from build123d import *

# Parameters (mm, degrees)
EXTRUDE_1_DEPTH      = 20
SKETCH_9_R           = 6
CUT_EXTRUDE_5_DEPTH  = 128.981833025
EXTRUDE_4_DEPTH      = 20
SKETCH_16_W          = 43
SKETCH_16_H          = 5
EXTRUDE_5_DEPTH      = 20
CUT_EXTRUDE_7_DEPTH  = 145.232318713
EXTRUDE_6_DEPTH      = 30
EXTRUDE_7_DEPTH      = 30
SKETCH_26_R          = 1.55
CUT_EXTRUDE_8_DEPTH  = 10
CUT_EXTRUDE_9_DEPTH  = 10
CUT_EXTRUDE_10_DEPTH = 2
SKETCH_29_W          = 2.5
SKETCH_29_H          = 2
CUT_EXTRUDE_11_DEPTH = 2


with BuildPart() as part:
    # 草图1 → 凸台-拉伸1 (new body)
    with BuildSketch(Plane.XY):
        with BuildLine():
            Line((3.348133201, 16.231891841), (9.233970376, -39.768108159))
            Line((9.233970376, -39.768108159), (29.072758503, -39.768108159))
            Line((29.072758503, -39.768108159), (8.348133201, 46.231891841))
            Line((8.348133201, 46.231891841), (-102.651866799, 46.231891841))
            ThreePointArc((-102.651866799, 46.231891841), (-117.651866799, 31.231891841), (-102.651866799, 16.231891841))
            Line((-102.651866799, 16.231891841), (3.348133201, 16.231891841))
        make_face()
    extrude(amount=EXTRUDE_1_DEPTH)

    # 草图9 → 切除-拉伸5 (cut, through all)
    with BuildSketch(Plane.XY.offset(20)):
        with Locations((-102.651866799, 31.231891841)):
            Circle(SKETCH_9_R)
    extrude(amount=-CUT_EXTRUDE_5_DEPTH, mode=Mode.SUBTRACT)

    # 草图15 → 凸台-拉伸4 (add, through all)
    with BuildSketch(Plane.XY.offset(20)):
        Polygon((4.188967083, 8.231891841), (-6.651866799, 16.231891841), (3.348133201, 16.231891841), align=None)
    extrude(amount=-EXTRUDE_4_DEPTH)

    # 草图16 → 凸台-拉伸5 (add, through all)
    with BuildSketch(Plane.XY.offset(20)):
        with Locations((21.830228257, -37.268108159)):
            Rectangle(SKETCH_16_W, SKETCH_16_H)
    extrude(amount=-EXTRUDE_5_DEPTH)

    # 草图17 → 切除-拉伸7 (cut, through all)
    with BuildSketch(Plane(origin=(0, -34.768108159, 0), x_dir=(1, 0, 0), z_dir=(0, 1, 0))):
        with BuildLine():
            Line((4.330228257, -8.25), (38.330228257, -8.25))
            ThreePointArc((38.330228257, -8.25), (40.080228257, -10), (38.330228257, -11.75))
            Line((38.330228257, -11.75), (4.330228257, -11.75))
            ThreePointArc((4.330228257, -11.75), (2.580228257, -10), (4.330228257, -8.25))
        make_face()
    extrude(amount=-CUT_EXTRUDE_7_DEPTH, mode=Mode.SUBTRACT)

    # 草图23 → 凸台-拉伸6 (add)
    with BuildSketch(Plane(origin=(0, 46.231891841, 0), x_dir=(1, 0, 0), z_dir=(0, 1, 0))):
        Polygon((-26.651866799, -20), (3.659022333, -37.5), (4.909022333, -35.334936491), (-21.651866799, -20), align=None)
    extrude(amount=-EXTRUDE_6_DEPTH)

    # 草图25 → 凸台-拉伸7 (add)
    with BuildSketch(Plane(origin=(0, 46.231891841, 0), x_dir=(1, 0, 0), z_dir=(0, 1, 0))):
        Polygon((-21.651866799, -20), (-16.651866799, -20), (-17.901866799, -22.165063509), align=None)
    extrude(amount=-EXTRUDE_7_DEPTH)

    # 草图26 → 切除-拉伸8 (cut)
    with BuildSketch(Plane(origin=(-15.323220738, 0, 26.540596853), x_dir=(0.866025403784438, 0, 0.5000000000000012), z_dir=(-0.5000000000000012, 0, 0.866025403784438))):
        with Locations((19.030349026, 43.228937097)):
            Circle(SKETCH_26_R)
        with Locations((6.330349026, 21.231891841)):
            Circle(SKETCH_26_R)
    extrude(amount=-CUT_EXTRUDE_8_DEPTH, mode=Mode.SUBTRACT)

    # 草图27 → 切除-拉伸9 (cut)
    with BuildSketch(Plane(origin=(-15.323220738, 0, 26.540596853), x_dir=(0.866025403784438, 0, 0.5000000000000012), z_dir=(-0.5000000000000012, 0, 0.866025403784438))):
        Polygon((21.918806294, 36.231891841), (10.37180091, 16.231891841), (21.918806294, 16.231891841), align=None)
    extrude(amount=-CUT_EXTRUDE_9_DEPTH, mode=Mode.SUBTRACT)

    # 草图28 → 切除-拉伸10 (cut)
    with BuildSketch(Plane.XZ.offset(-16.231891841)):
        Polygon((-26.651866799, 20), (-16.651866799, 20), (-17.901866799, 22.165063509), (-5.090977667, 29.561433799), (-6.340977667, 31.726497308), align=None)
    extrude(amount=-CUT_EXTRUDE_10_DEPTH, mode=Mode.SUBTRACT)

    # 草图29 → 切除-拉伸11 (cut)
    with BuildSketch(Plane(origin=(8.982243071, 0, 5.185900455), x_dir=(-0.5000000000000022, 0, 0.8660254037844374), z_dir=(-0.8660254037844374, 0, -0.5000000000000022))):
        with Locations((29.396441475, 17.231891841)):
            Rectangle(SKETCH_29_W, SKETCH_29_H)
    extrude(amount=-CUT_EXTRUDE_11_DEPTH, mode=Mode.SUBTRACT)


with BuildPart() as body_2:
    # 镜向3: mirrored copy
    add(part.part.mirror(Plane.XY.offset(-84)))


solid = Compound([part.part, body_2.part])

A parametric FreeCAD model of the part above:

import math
import FreeCAD as App
import Part
import Sketcher

V = App.Vector
Q = App.Units.Quantity


def add_polygon(sketch, points):
    """Adds a closed chain of lines whose ends are joined by coincident constraints."""
    first, n = sketch.GeometryCount, len(points)
    for a, b in zip(points, points[1:] + points[:1]):
        sketch.addGeometry(Part.LineSegment(App.Vector(*a, 0), App.Vector(*b, 0)), False)
    for i in range(n):
        sketch.addConstraint(Sketcher.Constraint("Coincident", first + i, 2, first + (i + 1) % n, 1))

doc = App.newDocument("Part")
body = doc.addObject("PartDesign::Body", "Body")

# Sketch on XY plane
sketch1 = doc.addObject("Sketcher::SketchObject", "Sketch")
body.addObject(sketch1)
sketch1.AttachmentSupport = (doc.XY_Plane, [""])
sketch1.MapMode = "FlatFace"
sketch1.addGeometry([
    Part.LineSegment(V(3, 16, 0), V(9, -40, 0)),  # 0
    Part.LineSegment(V(9, -40, 0), V(29, -40, 0)),  # 1
    Part.LineSegment(V(29, -40, 0), V(8, 46, 0)),  # 2
    Part.LineSegment(V(8, 46, 0), V(-103, 46, 0)),  # 3
    Part.ArcOfCircle(Part.Circle(V(-103, 31, 0), V(0, 0, 1), 15), math.radians(90), math.radians(270)),  # 4
    Part.LineSegment(V(-103, 16, 0), V(3, 16, 0)),  # 5
], False)
sketch1.addConstraint([
    Sketcher.Constraint("Coincident", 0, 2, 1, 1),
    Sketcher.Constraint("Coincident", 1, 2, 2, 1),
    Sketcher.Constraint("Coincident", 2, 2, 3, 1),
    Sketcher.Constraint("Tangent", 3, 2, 4, 1),
    Sketcher.Constraint("Tangent", 4, 2, 5, 1),
    Sketcher.Constraint("Coincident", 5, 2, 0, 1),
    Sketcher.Constraint("Horizontal", 1),
    Sketcher.Constraint("Horizontal", 3),
    Sketcher.Constraint("Horizontal", 5),
    Sketcher.Constraint("Radius", 4, 15.0),
    Sketcher.Constraint("DistanceX", 3, 2, 3, 1, 111.0),
    Sketcher.Constraint("DistanceX", 5, 1, 5, 2, 106.0),
    Sketcher.Constraint("Angle", 0, Q("-84 deg")),
    Sketcher.Constraint("DistanceY", 0, 2, 4, 3, 71.0),
    Sketcher.Constraint("DistanceX", 1, 1, 1, 2, 19.838788),
    Sketcher.Constraint("DistanceY", -1, 1, 4, 3, 31.231892),
    Sketcher.Constraint("DistanceX", -1, 1, 0, 2, 9.23397),
])
pad1 = doc.addObject("PartDesign::Pad", "Pad")
body.addObject(pad1)
pad1.Profile = sketch1
pad1.Length = 20

# Sketch on XY plane
sketch2 = doc.addObject("Sketcher::SketchObject", "Sketch001")
body.addObject(sketch2)
sketch2.AttachmentSupport = (doc.XY_Plane, [""])
sketch2.MapMode = "FlatFace"
sketch2.AttachmentOffset = App.Placement(V(0, 0, 20), App.Rotation())
sketch2.addGeometry(Part.Circle(V(-103, 31, 0), V(0, 0, 1), 6), False)
sketch2.addConstraint([
    Sketcher.Constraint("Diameter", 0, 12.0),
    Sketcher.Constraint("DistanceY", -1, 1, 0, 3, 31.231892),
    Sketcher.Constraint("DistanceX", 0, 3, -1, 1, 102.651867),
])
pocket1 = doc.addObject("PartDesign::Pocket", "Pocket")
body.addObject(pocket1)
pocket1.Profile = sketch2
pocket1.Type = "ThroughAll"

# Sketch on XY plane
sketch3 = doc.addObject("Sketcher::SketchObject", "Sketch002")
body.addObject(sketch3)
sketch3.AttachmentSupport = (doc.XY_Plane, [""])
sketch3.MapMode = "FlatFace"
sketch3.AttachmentOffset = App.Placement(V(0, 0, 20), App.Rotation())
add_polygon(sketch3, [(-7, 16), (4, 8), (3, 16)])  # lines 0-2
sketch3.addConstraint([
    Sketcher.Constraint("Horizontal", 2),
    Sketcher.Constraint("DistanceX", 2, 2, 2, 1, 10.0),
    Sketcher.Constraint("Angle", 1, Q("96 deg")),
    Sketcher.Constraint("DistanceY", 0, 2, 1, 2, 8.0),
    Sketcher.Constraint("DistanceY", -1, 1, 0, 2, 8.231892),
    Sketcher.Constraint("DistanceX", -1, 1, 0, 2, 4.188967),
])
pad2 = doc.addObject("PartDesign::Pad", "Pad001")
body.addObject(pad2)
pad2.Profile = sketch3
pad2.Length = 20
pad2.Reversed = True

# Sketch on XY plane
sketch4 = doc.addObject("Sketcher::SketchObject", "Sketch003")
body.addObject(sketch4)
sketch4.AttachmentSupport = (doc.XY_Plane, [""])
sketch4.MapMode = "FlatFace"
sketch4.AttachmentOffset = App.Placement(V(0, 0, 20), App.Rotation())
add_polygon(sketch4, [(0, -35), (0, -40), (43, -40), (43, -35)])  # lines 0-3
sketch4.addConstraint([
    Sketcher.Constraint("Vertical", 0),
    Sketcher.Constraint("Horizontal", 1),
    Sketcher.Constraint("Vertical", 2),
    Sketcher.Constraint("Horizontal", 3),
    Sketcher.Constraint("DistanceX", 1, 1, 1, 2, 43.0),
    Sketcher.Constraint("DistanceY", 0, 2, 0, 1, 5.0),
    Sketcher.Constraint("DistanceX", -1, 1, 0, 2, 0.330228),
    Sketcher.Constraint("DistanceY", 0, 2, -1, 1, 39.768108),
])
pad3 = doc.addObject("PartDesign::Pad", "Pad002")
body.addObject(pad3)
pad3.Profile = sketch4
pad3.Type = "UpToLast"
pad3.Reversed = True

# Sketch on XZ plane
sketch5 = doc.addObject("Sketcher::SketchObject", "Sketch004")
body.addObject(sketch5)
sketch5.AttachmentSupport = (doc.XZ_Plane, [""])
sketch5.MapMode = "FlatFace"
sketch5.AttachmentOffset = App.Placement(V(0, 0, 34.768108), App.Rotation())
sketch5.addGeometry([
    Part.LineSegment(V(38.3, 8.2, 0), V(4.3, 8.2, 0)),
    Part.ArcOfCircle(Part.Circle(V(4.3, 10, 0), V(0, 0, 1), 1.8), math.radians(90), math.radians(270)),
    Part.LineSegment(V(4.3, 11.8, 0), V(38.3, 11.8, 0)),
    Part.ArcOfCircle(Part.Circle(V(38.3, 10, 0), V(0, 0, 1), 1.8), math.radians(-90), math.radians(90)),
], False)
sketch5.addConstraint([
    Sketcher.Constraint("Tangent", 0, 2, 1, 2),
    Sketcher.Constraint("Tangent", 1, 1, 2, 1),
    Sketcher.Constraint("Tangent", 2, 2, 3, 2),
    Sketcher.Constraint("Tangent", 3, 1, 0, 1),
    Sketcher.Constraint("Horizontal", 0),
    Sketcher.Constraint("Horizontal", 2),
    Sketcher.Constraint("DistanceX", 0, 2, 0, 1, 34.0),
    Sketcher.Constraint("Radius", 1, 1.75),
    Sketcher.Constraint("DistanceY", -1, 1, 1, 3, 10.0),
    Sketcher.Constraint("DistanceX", -1, 1, 1, 3, 4.330228),
])
pocket2 = doc.addObject("PartDesign::Pocket", "Pocket001")
body.addObject(pocket2)
pocket2.Profile = sketch5
pocket2.Type = "ThroughAll"
pocket2.Reversed = True

# Sketch on XZ plane
sketch6 = doc.addObject("Sketcher::SketchObject", "Sketch005")
body.addObject(sketch6)
sketch6.AttachmentSupport = (doc.XZ_Plane, [""])
sketch6.MapMode = "FlatFace"
sketch6.AttachmentOffset = App.Placement(V(0, 0, -46.231892), App.Rotation())
add_polygon(sketch6, [(-26.7, 20), (3.7, 37.5), (4.9, 35.3), (-21.7, 20)])  # lines 0-3
sketch6.addConstraint([
    Sketcher.Constraint("Horizontal", 3),
    Sketcher.Constraint("Perpendicular", 0, 1),
    Sketcher.Constraint("Perpendicular", 1, 2),
    Sketcher.Constraint("DistanceX", 3, 2, 3, 1, 5.0),
    Sketcher.Constraint("Angle", 0, Q("30 deg")),
    Sketcher.Constraint("Distance", 0, 35.0),
    Sketcher.Constraint("DistanceY", -1, 1, 2, 2, 20.0),
    Sketcher.Constraint("DistanceX", -1, 1, 0, 2, 3.659022),
])
pad4 = doc.addObject("PartDesign::Pad", "Pad003")
body.addObject(pad4)
pad4.Profile = sketch6
pad4.Length = 30

# Sketch on XZ plane
sketch7 = doc.addObject("Sketcher::SketchObject", "Sketch006")
body.addObject(sketch7)
sketch7.AttachmentSupport = (doc.XZ_Plane, [""])
sketch7.MapMode = "FlatFace"
sketch7.AttachmentOffset = App.Placement(V(0, 0, -46.231892), App.Rotation())
add_polygon(sketch7, [(-16.7, 20), (-21.7, 20), (-17.9, 22.2)])  # lines 0-2
sketch7.addConstraint([
    Sketcher.Constraint("Horizontal", 0),
    Sketcher.Constraint("Perpendicular", 1, 2),
    Sketcher.Constraint("DistanceX", 0, 2, 0, 1, 5.0),
    Sketcher.Constraint("Angle", 1, Q("30 deg")),
    Sketcher.Constraint("DistanceY", -1, 1, 0, 2, 20.0),
    Sketcher.Constraint("DistanceX", 0, 2, -1, 1, 21.651867),
])
pad5 = doc.addObject("PartDesign::Pad", "Pad004")
body.addObject(pad5)
pad5.Profile = sketch7
pad5.Length = 30

# Sketch on an angled plane
sketch8 = doc.addObject("Sketcher::SketchObject", "Sketch007")
body.addObject(sketch8)
sketch8.Placement = App.Placement(V(-15.323221, 0, 26.540597), App.Rotation(V(0.866025404, 0, 0.5), V(0, 1, 0), V(-0.5, 0, 0.866025404), "ZXY"))
sketch8.addGeometry([
    Part.Circle(V(19, 43.2, 0), V(0, 0, 1), 1.6),
    Part.Circle(V(6.3, 21.2, 0), V(0, 0, 1), 1.6),
], False)
sketch8.addConstraint([
    Sketcher.Constraint("Equal", 0, 1),
    Sketcher.Constraint("Diameter", 0, 3.1),
    Sketcher.Constraint("DistanceX", 1, 3, 0, 3, 12.7),
    Sketcher.Constraint("DistanceX", -1, 1, 0, 3, 19.030349),
    Sketcher.Constraint("DistanceY", -1, 1, 1, 3, 21.231892),
    Sketcher.Constraint("DistanceY", -1, 1, 0, 3, 43.228937),
])
pocket3 = doc.addObject("PartDesign::Pocket", "Pocket002")
body.addObject(pocket3)
pocket3.Profile = sketch8
pocket3.Length = 10

# Sketch on an angled plane
sketch9 = doc.addObject("Sketcher::SketchObject", "Sketch008")
body.addObject(sketch9)
sketch9.Placement = App.Placement(V(-15.323221, 0, 26.540597), App.Rotation(V(0.866025404, 0, 0.5), V(0, 1, 0), V(-0.5, 0, 0.866025404), "ZXY"))
add_polygon(sketch9, [(22, 36), (10, 16), (22, 16)])  # lines 0-2
sketch9.addConstraint([
    Sketcher.Constraint("Horizontal", 1),
    Sketcher.Constraint("Vertical", 2),
    Sketcher.Constraint("DistanceY", 2, 1, 2, 2, 20.0),
    Sketcher.Constraint("Angle", 0, Q("-120 deg")),
    Sketcher.Constraint("DistanceX", -1, 1, 0, 2, 10.371801),
    Sketcher.Constraint("DistanceY", -1, 1, 0, 2, 16.231892),
])
pocket4 = doc.addObject("PartDesign::Pocket", "Pocket003")
body.addObject(pocket4)
pocket4.Profile = sketch9
pocket4.Length = 10

# Sketch on XZ plane
sketch10 = doc.addObject("Sketcher::SketchObject", "Sketch009")
body.addObject(sketch10)
sketch10.AttachmentSupport = (doc.XZ_Plane, [""])
sketch10.MapMode = "FlatFace"
sketch10.AttachmentOffset = App.Placement(V(0, 0, -16.231892), App.Rotation())
add_polygon(sketch10, [(-26.7, 20), (-16.7, 20), (-17.9, 22.2), (-5.1, 29.6), (-6.3, 31.7)])  # lines 0-4
sketch10.addConstraint([
    Sketcher.Constraint("Horizontal", 0),
    Sketcher.Constraint("Perpendicular", 1, 2),
    Sketcher.Constraint("Perpendicular", 2, 3),
    Sketcher.Constraint("Perpendicular", 3, 4),
    Sketcher.Constraint("Equal", 1, 3),
    Sketcher.Constraint("DistanceX", 0, 1, 0, 2, 10.0),
    Sketcher.Constraint("Angle", 1, Q("120 deg")),
    Sketcher.Constraint("DistanceY", -1, 1, 0, 2, 20.0),
    Sketcher.Constraint("Distance", 2, 14.792741),
    Sketcher.Constraint("DistanceX", 0, 2, -1, 1, 16.651867),
])
pocket5 = doc.addObject("PartDesign::Pocket", "Pocket004")
body.addObject(pocket5)
pocket5.Profile = sketch10
pocket5.Length = 2

# Sketch on an angled plane
sketch11 = doc.addObject("Sketcher::SketchObject", "Sketch010")
body.addObject(sketch11)
sketch11.Placement = App.Placement(V(8.982243, 0, 5.1859), App.Rotation(V(-0.5, 0, 0.866025404), V(0, 1, 0), V(-0.866025404, 0, -0.5), "ZXY"))
add_polygon(sketch11, [(28.1, 18.2), (28.1, 16.2), (30.6, 16.2), (30.6, 18.2)])  # lines 0-3
sketch11.addConstraint([
    Sketcher.Constraint("Vertical", 0),
    Sketcher.Constraint("Horizontal", 1),
    Sketcher.Constraint("Vertical", 2),
    Sketcher.Constraint("Horizontal", 3),
    Sketcher.Constraint("DistanceY", 0, 2, 0, 1, 2.0),
    Sketcher.Constraint("DistanceX", 1, 1, 1, 2, 2.5),
    Sketcher.Constraint("DistanceX", -1, 1, 0, 2, 28.146441),
    Sketcher.Constraint("DistanceY", -1, 1, 0, 2, 16.231892),
])
pocket6 = doc.addObject("PartDesign::Pocket", "Pocket005")
body.addObject(pocket6)
pocket6.Profile = sketch11
pocket6.Length = 2
body2 = doc.addObject("PartDesign::Body", "Body001")
doc.recompute()

mirroring = doc.addObject("Part::Mirroring", "Mirroring")
mirroring.Source = body
mirroring.Base = V(0, 0, -84)
mirroring.Normal = V(0, 0, 1)
body2.BaseFeature = mirroring
doc.recompute()
mirroring.Visibility = False

doc.recompute()
